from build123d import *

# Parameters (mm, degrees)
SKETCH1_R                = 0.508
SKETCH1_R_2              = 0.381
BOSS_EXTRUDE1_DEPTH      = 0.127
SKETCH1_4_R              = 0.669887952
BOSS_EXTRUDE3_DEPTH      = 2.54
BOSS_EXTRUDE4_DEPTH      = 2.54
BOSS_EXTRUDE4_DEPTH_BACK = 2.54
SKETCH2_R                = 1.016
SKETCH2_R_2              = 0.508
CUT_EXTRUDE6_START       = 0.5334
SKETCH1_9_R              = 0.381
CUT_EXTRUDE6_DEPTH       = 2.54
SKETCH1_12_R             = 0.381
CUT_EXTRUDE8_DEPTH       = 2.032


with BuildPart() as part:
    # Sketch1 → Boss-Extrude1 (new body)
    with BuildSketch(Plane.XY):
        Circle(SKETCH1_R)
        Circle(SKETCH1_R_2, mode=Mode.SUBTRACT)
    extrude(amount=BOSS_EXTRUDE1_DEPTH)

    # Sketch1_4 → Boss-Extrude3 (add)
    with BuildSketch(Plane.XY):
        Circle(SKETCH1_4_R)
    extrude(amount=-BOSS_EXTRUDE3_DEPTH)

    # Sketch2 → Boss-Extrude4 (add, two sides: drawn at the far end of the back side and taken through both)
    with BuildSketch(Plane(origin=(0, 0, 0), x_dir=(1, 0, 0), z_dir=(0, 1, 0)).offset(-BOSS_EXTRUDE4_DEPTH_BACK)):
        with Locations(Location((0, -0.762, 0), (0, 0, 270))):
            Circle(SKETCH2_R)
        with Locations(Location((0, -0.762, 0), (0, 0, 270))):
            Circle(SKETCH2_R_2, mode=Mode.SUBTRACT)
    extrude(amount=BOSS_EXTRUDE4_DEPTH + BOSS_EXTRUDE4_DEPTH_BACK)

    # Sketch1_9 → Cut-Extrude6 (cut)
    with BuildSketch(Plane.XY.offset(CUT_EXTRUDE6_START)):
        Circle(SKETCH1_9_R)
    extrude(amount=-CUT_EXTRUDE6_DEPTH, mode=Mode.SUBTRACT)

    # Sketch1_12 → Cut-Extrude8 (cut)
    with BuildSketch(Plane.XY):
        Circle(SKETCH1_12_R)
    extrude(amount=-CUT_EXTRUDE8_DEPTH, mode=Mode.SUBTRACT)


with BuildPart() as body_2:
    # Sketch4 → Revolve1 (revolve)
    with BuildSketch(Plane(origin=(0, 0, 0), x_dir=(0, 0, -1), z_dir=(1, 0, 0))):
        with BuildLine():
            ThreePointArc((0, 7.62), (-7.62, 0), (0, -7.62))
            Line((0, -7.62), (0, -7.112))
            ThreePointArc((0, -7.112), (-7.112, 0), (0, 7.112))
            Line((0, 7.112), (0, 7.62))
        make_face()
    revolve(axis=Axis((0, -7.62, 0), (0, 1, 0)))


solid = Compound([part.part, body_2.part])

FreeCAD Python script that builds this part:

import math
import FreeCAD as App
import Part
import Sketcher

V = App.Vector
Q = App.Units.Quantity

doc = App.newDocument("Part")
body = doc.addObject("PartDesign::Body", "Body")

sketch1 = body.newObject("Sketcher::SketchObject", "Sketch")
sketch1.AttachmentSupport = (doc.getObject("XY_Plane"), [""])
sketch1.MapMode = "FlatFace"
sketch1.addGeometry(Part.Circle(V(0, 0, 0), V(0, 0, 1), 0.51), False)
sketch1.addGeometry(Part.Circle(V(0, 0, 0), V(0, 0, 1), 0.38), False)
sketch1.addConstraint(Sketcher.Constraint("Coincident", 0, 3, -1, 1))
sketch1.addConstraint(Sketcher.Constraint("Coincident", 1, 3, -1, 1))
sketch1.addConstraint(Sketcher.Constraint("Diameter", 0, Q("0.04 in")))
sketch1.addConstraint(Sketcher.Constraint("Diameter", 1, Q("0.03 in")))
pad1 = body.newObject("PartDesign::Pad", "Pad")
pad1.Profile = sketch1
pad1.Length = Q("0.005 in")

sketch2 = body.newObject("Sketcher::SketchObject", "Sketch001")
sketch2.AttachmentSupport = (doc.getObject("XY_Plane"), [""])
sketch2.MapMode = "FlatFace"
sketch2.addGeometry(Part.Circle(V(0, 0, 0), V(0, 0, 1), 0.7), False)
sketch2.addConstraint(Sketcher.Constraint("Coincident", 0, 3, -1, 1))
sketch2.addConstraint(Sketcher.Constraint("Diameter", 0, 1.339776))
pad2 = body.newObject("PartDesign::Pad", "Pad001")
pad2.Profile = sketch2
pad2.Length = Q("0.1 in")
pad2.Reversed = True

sketch3 = body.newObject("Sketcher::SketchObject", "Sketch002")
sketch3.AttachmentSupport = (doc.getObject("XZ_Plane"), [""])
sketch3.MapMode = "FlatFace"
sketch3.addGeometry(Part.Circle(V(0, 0.8, 0), V(0, 0, 1), 1), False)
sketch3.addGeometry(Part.Circle(V(0, 0.8, 0), V(0, 0, 1), 0.5), False)
sketch3.addConstraint(Sketcher.Constraint("Coincident", 1, 3, 0, 3))
sketch3.addConstraint(Sketcher.Constraint("PointOnObject", 0, 3, -2))
sketch3.addConstraint(Sketcher.Constraint("Diameter", 0, Q("0.08 in")))
sketch3.addConstraint(Sketcher.Constraint("Diameter", 1, Q("0.04 in")))
sketch3.addConstraint(Sketcher.Constraint("DistanceY", -1, 1, 0, 3, Q("0.03 in")))
pad3 = body.newObject("PartDesign::Pad", "Pad002")
pad3.Profile = sketch3
pad3.Type = "TwoLengths"
pad3.Length = Q("0.1 in")
pad3.Length2 = Q("0.1 in")
pad3.Reversed = True

sketch4 = body.newObject("Sketcher::SketchObject", "Sketch003")
sketch4.AttachmentSupport = (doc.getObject("XY_Plane"), [""])
sketch4.MapMode = "FlatFace"
sketch4.AttachmentOffset = App.Placement(V(0, 0, 0.021 * 25.4), App.Rotation())
sketch4.addGeometry(Part.Circle(V(0, 0, 0), V(0, 0, 1), 0.38), False)
sketch4.addConstraint(Sketcher.Constraint("Coincident", 0, 3, -1, 1))
sketch4.addConstraint(Sketcher.Constraint("Diameter", 0, Q("0.03 in")))
pocket1 = body.newObject("PartDesign::Pocket", "Pocket")
pocket1.Profile = sketch4
pocket1.Length = Q("0.1 in")

sketch5 = body.newObject("Sketcher::SketchObject", "Sketch004")
sketch5.AttachmentSupport = (doc.getObject("XY_Plane"), [""])
sketch5.MapMode = "FlatFace"
sketch5.addGeometry(Part.Circle(V(0, 0, 0), V(0, 0, 1), 0.38), False)
sketch5.addConstraint(Sketcher.Constraint("Coincident", 0, 3, -1, 1))
sketch5.addConstraint(Sketcher.Constraint("Diameter", 0, Q("0.03 in")))
pocket2 = body.newObject("PartDesign::Pocket", "Pocket001")
pocket2.Profile = sketch5
pocket2.Length = Q("0.08 in")
body2 = doc.addObject("PartDesign::Body", "Body001")

sketch6 = body2.newObject("Sketcher::SketchObject", "Sketch005")
sketch6.AttachmentSupport = (doc.getObject("YZ_Plane001"), [""])
sketch6.MapMode = "FlatFace"
sketch6.addGeometry(Part.ArcOfCircle(Part.Circle(V(0, 0, 0), V(0, 0, 1), 7.6), math.radians(0), math.radians(180)), False)
sketch6.addGeometry(Part.LineSegment(V(-7.6, 0, 0), V(-7.1, 0, 0)), False)
sketch6.addGeometry(Part.ArcOfCircle(Part.Circle(V(0, 0, 0), V(0, 0, 1), 7.1), math.radians(0), math.radians(180)), False)
sketch6.addGeometry(Part.LineSegment(V(7.1, 0, 0), V(7.6, 0, 0)), False)
sketch6.addConstraint(Sketcher.Constraint("Coincident", 0, 2, 1, 1))
sketch6.addConstraint(Sketcher.Constraint("Coincident", 1, 2, 2, 2))
sketch6.addConstraint(Sketcher.Constraint("Coincident", 2, 1, 3, 1))
sketch6.addConstraint(Sketcher.Constraint("Coincident", 3, 2, 0, 1))
sketch6.addConstraint(Sketcher.Constraint("Horizontal", 1))
sketch6.addConstraint(Sketcher.Constraint("Horizontal", 3))
sketch6.addConstraint(Sketcher.Constraint("Coincident", 0, 3, -1, 1))
sketch6.addConstraint(Sketcher.Constraint("Coincident", 2, 3, -1, 1))
sketch6.addConstraint(Sketcher.Constraint("PointOnObject", 0, 2, -1))
sketch6.addConstraint(Sketcher.Constraint("PointOnObject", 2, 1, -1))
sketch6.addConstraint(Sketcher.Constraint("Radius", 0, Q("0.3 in")))
sketch6.addConstraint(Sketcher.Constraint("Radius", 2, Q("0.28 in")))
revolution = body2.newObject("PartDesign::Revolution", "Revolution")
revolution.Profile = sketch6
revolution.ReferenceAxis = (sketch6, ["H_Axis"])
revolution.Angle = 360

doc.recompute()
